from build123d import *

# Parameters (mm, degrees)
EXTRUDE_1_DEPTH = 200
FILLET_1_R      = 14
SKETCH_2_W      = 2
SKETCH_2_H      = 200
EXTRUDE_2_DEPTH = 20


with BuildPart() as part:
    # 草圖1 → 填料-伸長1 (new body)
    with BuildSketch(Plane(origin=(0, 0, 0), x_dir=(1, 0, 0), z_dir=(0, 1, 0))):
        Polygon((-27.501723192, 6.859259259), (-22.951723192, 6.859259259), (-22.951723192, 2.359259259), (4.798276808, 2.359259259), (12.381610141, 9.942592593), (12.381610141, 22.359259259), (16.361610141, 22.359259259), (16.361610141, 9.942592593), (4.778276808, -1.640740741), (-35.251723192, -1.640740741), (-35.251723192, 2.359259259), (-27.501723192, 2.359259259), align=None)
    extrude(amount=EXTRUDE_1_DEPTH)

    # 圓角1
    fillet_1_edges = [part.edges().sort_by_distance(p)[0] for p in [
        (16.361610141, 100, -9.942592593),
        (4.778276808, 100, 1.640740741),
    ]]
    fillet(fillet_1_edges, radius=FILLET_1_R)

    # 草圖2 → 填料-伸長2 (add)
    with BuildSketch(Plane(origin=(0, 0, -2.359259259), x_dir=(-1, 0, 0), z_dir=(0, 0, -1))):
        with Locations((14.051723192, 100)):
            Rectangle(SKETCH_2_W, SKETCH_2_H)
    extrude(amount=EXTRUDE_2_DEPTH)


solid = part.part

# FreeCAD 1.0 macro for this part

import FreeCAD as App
import Part
import Sketcher
from FreeCAD import Vector
Q = App.Units.Quantity


def edges_at(feature, points):
    """Names of the edges that pass closest to the given points."""
    edges = feature.Shape.Edges
    near = lambda p: min(range(len(edges)), key=lambda i: edges[i].distToShape(Part.Vertex(*p))[0])
    return sorted({f"Edge{near(p) + 1}" for p in points})

doc = App.newDocument("Part")
body = doc.addObject("PartDesign::Body", "Body")

# Sketch on XZ plane
sketch1 = body.newObject("Sketcher::SketchObject", "Sketch")
sketch1.AttachmentSupport = (doc.getObject("XZ_Plane"), [""])
sketch1.MapMode = "FlatFace"
sketch1.addGeometry([
    Part.LineSegment(Vector(-22.951723, -6.859259, 0), Vector(-27.501723, -6.859259, 0)),  # 0
    Part.LineSegment(Vector(-27.501723, -6.859259, 0), Vector(-27.501723, -2.359259, 0)),  # 1
    Part.LineSegment(Vector(-27.501723, -2.359259, 0), Vector(-35.251723, -2.359259, 0)),  # 2
    Part.LineSegment(Vector(-35.251723, -2.359259, 0), Vector(-35.251723, 1.640741, 0)),  # 3
    Part.LineSegment(Vector(-35.251723, 1.640741, 0), Vector(4.778277, 1.640741, 0)),  # 4
    Part.LineSegment(Vector(4.778277, 1.640741, 0), Vector(16.36161, -9.942593, 0)),  # 5
    Part.LineSegment(Vector(16.36161, -9.942593, 0), Vector(16.36161, -22.359259, 0)),  # 6
    Part.LineSegment(Vector(16.36161, -22.359259, 0), Vector(12.38161, -22.359259, 0)),  # 7
    Part.LineSegment(Vector(12.38161, -22.359259, 0), Vector(12.38161, -9.942593, 0)),  # 8
    Part.LineSegment(Vector(12.38161, -9.942593, 0), Vector(4.798277, -2.359259, 0)),  # 9
    Part.LineSegment(Vector(4.798277, -2.359259, 0), Vector(-22.951723, -2.359259, 0)),  # 10
    Part.LineSegment(Vector(-22.951723, -2.359259, 0), Vector(-22.951723, -6.859259, 0)),  # 11
], False)
sketch1.addConstraint([
    Sketcher.Constraint("Coincident", 0, 2, 1, 1),
    Sketcher.Constraint("Coincident", 1, 2, 2, 1),
    Sketcher.Constraint("Coincident", 2, 2, 3, 1),
    Sketcher.Constraint("Coincident", 3, 2, 4, 1),
    Sketcher.Constraint("Coincident", 4, 2, 5, 1),
    Sketcher.Constraint("Coincident", 5, 2, 6, 1),
    Sketcher.Constraint("Coincident", 6, 2, 7, 1),
    Sketcher.Constraint("Coincident", 7, 2, 8, 1),
    Sketcher.Constraint("Coincident", 8, 2, 9, 1),
    Sketcher.Constraint("Coincident", 9, 2, 10, 1),
    Sketcher.Constraint("Coincident", 10, 2, 11, 1),
    Sketcher.Constraint("Coincident", 11, 2, 0, 1),
    Sketcher.Constraint("Horizontal", 0),
    Sketcher.Constraint("Vertical", 1),
    Sketcher.Constraint("Horizontal", 2),
    Sketcher.Constraint("Vertical", 3),
    Sketcher.Constraint("Horizontal", 4),
    Sketcher.Constraint("Vertical", 6),
    Sketcher.Constraint("Horizontal", 7),
    Sketcher.Constraint("Vertical", 8),
    Sketcher.Constraint("Horizontal", 10),
    Sketcher.Constraint("Vertical", 11),
    Sketcher.Constraint("Parallel", 5, 9),
    Sketcher.Constraint("Horizontal", 5, 2, 8, 2),
    Sketcher.Constraint("Horizontal", 2, 2, 9, 2),
    Sketcher.Constraint("DistanceY", 3, 1, 3, 2, Q("4 mm")),
    Sketcher.Constraint("Angle", 5, Q("-45 deg")),
    Sketcher.Constraint("DistanceY", 1, 1, 1, 2, Q("4.5 mm")),
    Sketcher.Constraint("DistanceY", 6, 2, 4, 2, Q("24 mm")),
    Sketcher.Constraint("DistanceX", 0, 2, 0, 1, Q("4.55 mm")),
    Sketcher.Constraint("DistanceX", 2, 2, 2, 1, Q("7.75 mm")),
    Sketcher.Constraint("DistanceX", 4, 1, 4, 2, Q("40.03 mm")),
    Sketcher.Constraint("DistanceX", 7, 2, 7, 1, Q("3.98 mm")),
    Sketcher.Constraint("DistanceY", 6, 2, 6, 1, Q("12.416667 mm")),
    Sketcher.Constraint("DistanceY", 0, 2, -1, 1, Q("6.859259 mm")),
    Sketcher.Constraint("DistanceX", -1, 1, 5, 2, Q("16.36161 mm")),
])
pad1 = body.newObject("PartDesign::Pad", "Pad")
pad1.Profile = sketch1
pad1.Length = 200
pad1.Reversed = True
doc.recompute()

fillet = body.newObject("PartDesign::Fillet", "Fillet")
fillet.Base = (pad1, edges_at(pad1, [(16.362, 100, -9.943), (4.778, 100, 1.641)]))
fillet.Radius = 14

# Sketch on XY plane
sketch2 = body.newObject("Sketcher::SketchObject", "Sketch001")
sketch2.AttachmentSupport = (doc.getObject("XY_Plane"), [""])
sketch2.MapMode = "FlatFace"
sketch2.AttachmentOffset = App.Placement(Vector(0, 0, -2.359259), App.Rotation())
sketch2.addGeometry([
    Part.LineSegment(Vector(-13.051723, 200, 0), Vector(-13.051723, 0, 0)),
    Part.LineSegment(Vector(-13.051723, 0, 0), Vector(-15.051723, 0, 0)),
    Part.LineSegment(Vector(-15.051723, 0, 0), Vector(-15.051723, 200, 0)),
    Part.LineSegment(Vector(-15.051723, 200, 0), Vector(-13.051723, 200, 0)),
], False)
sketch2.addConstraint([
    Sketcher.Constraint("Coincident", 0, 2, 1, 1),
    Sketcher.Constraint("Coincident", 1, 2, 2, 1),
    Sketcher.Constraint("Coincident", 2, 2, 3, 1),
    Sketcher.Constraint("Coincident", 3, 2, 0, 1),
    Sketcher.Constraint("Vertical", 0),
    Sketcher.Constraint("Horizontal", 1),
    Sketcher.Constraint("Vertical", 2),
    Sketcher.Constraint("Horizontal", 3),
    Sketcher.Constraint("PointOnObject", 0, 2, -1),
    Sketcher.Constraint("DistanceX", 1, 2, 1, 1, Q("2 mm")),
    Sketcher.Constraint("DistanceY", 0, 2, 0, 1, Q("200 mm")),
    Sketcher.Constraint("DistanceX", 0, 2, -1, 1, Q("13.051723 mm")),
])
pad2 = body.newObject("PartDesign::Pad", "Pad001")
pad2.Profile = sketch2
pad2.Length = 20
pad2.Reversed = True

doc.recompute()
